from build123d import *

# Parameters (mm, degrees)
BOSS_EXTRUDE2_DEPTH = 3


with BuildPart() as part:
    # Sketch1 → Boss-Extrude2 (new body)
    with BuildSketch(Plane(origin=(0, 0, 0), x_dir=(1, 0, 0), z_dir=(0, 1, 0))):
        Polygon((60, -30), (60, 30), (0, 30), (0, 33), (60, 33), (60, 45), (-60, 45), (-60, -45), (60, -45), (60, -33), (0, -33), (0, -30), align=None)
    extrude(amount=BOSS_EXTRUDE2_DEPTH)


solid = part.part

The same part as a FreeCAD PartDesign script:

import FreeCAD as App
import Part
import Sketcher
Q = App.Units.Quantity


def add_polygon(sketch, points):
    """Adds a closed chain of lines whose ends are joined by coincident constraints."""
    first, n = sketch.GeometryCount, len(points)
    for a, b in zip(points, points[1:] + points[:1]):
        sketch.addGeometry(Part.LineSegment(App.Vector(*a, 0), App.Vector(*b, 0)), False)
    for i in range(n):
        sketch.addConstraint(Sketcher.Constraint("Coincident", first + i, 2, first + (i + 1) % n, 1))

doc = App.newDocument("Part")
body = doc.addObject("PartDesign::Body", "Body")

sketch1 = body.newObject("Sketcher::SketchObject", "Sketch")
sketch1.AttachmentSupport = (doc.getObject("XZ_Plane"), [""])
sketch1.MapMode = "FlatFace"
add_polygon(sketch1, [(60, 30), (60, -30), (0, -30), (0, -33), (60, -33), (60, -45), (-60, -45), (-60, 45), (60, 45), (60, 33), (0, 33), (0, 30)])
sketch1.addConstraint([
    Sketcher.Constraint("Vertical", 0),
    Sketcher.Constraint("Horizontal", 1),
    Sketcher.Constraint("Vertical", 2),
    Sketcher.Constraint("Horizontal", 3),
    Sketcher.Constraint("Vertical", 4),
    Sketcher.Constraint("Horizontal", 5),
    Sketcher.Constraint("Vertical", 6),
    Sketcher.Constraint("Horizontal", 7),
    Sketcher.Constraint("Vertical", 8),
    Sketcher.Constraint("Horizontal", 9),
    Sketcher.Constraint("Vertical", 10),
    Sketcher.Constraint("Horizontal", 11),
    Sketcher.Constraint("Symmetric", 4, 2, 6, 2, -1, 1),
    Sketcher.Constraint("Symmetric", 2, 2, 9, 2, -1, 1),
    Sketcher.Constraint("Symmetric", 1, 2, 10, 2, -1),
    Sketcher.Constraint("Vertical", 0, 2, 3, 2),
    Sketcher.Constraint("Vertical", 4, 2, 7, 2),
    Sketcher.Constraint("Equal", 11, 0),
    Sketcher.Constraint("DistanceX", 1, 2, 1, 1, Q("60 mm")),
    Sketcher.Constraint("DistanceY", 2, 2, 2, 1, Q("3 mm")),
    Sketcher.Constraint("DistanceY", 4, 2, 4, 1, Q("12 mm")),
])
pad1 = body.newObject("PartDesign::Pad", "Pad")
pad1.Profile = sketch1
pad1.Length = 3
pad1.Reversed = True

doc.recompute()
